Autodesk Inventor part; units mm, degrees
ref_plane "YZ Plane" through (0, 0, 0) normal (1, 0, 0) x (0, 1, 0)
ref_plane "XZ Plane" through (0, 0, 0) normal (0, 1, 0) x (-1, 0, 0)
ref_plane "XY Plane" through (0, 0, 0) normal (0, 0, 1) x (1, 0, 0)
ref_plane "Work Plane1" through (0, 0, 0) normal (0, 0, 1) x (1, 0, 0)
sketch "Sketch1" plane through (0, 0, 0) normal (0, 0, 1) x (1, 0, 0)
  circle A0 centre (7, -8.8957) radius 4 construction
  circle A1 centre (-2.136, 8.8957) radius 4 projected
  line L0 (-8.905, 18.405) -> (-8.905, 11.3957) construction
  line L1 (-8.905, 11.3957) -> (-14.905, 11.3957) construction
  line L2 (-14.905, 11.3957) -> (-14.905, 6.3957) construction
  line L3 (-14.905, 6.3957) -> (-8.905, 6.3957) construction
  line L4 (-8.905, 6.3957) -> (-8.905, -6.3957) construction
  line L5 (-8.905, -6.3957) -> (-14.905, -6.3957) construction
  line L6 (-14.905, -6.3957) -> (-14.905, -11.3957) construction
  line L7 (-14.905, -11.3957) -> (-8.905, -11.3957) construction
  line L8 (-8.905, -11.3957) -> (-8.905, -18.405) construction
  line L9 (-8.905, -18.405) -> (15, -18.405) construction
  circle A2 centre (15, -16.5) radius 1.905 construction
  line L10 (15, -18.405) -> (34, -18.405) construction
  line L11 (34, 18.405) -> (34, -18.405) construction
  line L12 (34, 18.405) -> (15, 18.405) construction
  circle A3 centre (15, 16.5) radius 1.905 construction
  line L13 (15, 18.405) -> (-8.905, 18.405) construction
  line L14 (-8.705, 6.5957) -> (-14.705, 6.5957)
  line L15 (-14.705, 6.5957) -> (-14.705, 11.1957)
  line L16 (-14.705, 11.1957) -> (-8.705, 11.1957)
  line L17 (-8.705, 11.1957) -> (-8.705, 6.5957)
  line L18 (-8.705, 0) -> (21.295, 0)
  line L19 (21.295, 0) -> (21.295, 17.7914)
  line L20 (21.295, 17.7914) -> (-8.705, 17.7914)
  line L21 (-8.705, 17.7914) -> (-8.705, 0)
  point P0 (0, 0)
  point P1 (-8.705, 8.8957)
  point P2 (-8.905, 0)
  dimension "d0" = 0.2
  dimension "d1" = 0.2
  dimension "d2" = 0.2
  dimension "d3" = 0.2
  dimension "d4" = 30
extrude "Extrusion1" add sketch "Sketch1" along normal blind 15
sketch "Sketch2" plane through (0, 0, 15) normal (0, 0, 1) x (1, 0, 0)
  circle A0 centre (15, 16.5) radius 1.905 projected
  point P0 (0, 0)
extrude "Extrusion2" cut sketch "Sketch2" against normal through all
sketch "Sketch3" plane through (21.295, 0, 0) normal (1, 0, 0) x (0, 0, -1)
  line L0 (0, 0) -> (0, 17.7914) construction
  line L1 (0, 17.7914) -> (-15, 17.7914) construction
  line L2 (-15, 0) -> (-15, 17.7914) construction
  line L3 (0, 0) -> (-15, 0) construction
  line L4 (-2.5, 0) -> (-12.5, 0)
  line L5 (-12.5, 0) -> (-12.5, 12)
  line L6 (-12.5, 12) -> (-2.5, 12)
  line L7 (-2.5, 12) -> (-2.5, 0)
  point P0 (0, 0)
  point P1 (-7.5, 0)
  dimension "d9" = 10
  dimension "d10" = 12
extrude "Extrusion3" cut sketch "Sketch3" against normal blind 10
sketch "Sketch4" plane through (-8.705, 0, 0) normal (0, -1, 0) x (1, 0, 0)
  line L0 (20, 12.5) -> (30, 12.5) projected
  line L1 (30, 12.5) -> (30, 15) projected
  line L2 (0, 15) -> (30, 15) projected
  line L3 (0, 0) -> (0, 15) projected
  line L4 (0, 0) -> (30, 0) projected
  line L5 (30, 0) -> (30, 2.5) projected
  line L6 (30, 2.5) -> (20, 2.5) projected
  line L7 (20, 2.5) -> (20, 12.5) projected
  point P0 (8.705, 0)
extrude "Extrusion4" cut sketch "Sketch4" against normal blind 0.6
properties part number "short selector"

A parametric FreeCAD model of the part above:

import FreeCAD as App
import Part
import Sketcher
from FreeCAD import Vector


def add_polygon(sketch, points):
    """Adds a closed chain of lines whose ends are joined by coincident constraints."""
    first, n = sketch.GeometryCount, len(points)
    for a, b in zip(points, points[1:] + points[:1]):
        sketch.addGeometry(Part.LineSegment(App.Vector(*a, 0), App.Vector(*b, 0)), False)
    for i in range(n):
        sketch.addConstraint(Sketcher.Constraint("Coincident", first + i, 2, first + (i + 1) % n, 1))

doc = App.newDocument("Part")
body = doc.addObject("PartDesign::Body", "Body")

# Sketch on XY plane
sketch1 = body.newObject("Sketcher::SketchObject", "Sketch")
sketch1.AttachmentSupport = (doc.getObject("XY_Plane"), [""])
sketch1.MapMode = "FlatFace"
add_polygon(sketch1, [(-14.705, 6.5957), (-8.705, 6.5957), (-8.705, 0), (21.295, 0), (21.295, 17.7914), (-8.705, 17.7914), (-8.705, 11.1957), (-14.705, 11.1957)])  # lines 0-7
sketch1.addGeometry(Part.Circle(Vector(-2.136, 8.8957, 0), Vector(0, 0, 1), 4), False)  # 8
sketch1.addConstraint([
    Sketcher.Constraint("Horizontal", 0),
    Sketcher.Constraint("Vertical", 1),
    Sketcher.Constraint("Horizontal", 2),
    Sketcher.Constraint("Vertical", 3),
    Sketcher.Constraint("Horizontal", 4),
    Sketcher.Constraint("Vertical", 5),
    Sketcher.Constraint("Horizontal", 6),
    Sketcher.Constraint("Vertical", 7),
    Sketcher.Constraint("PointOnObject", 1, 2, -1),
    Sketcher.Constraint("Vertical", 1, 2, 4, 2),
    Sketcher.Constraint("Equal", 1, 5),
    Sketcher.Constraint("DistanceX", 2, 1, 2, 2, 30.0),
    Sketcher.Constraint("Diameter", 8, 8.0),
    Sketcher.Constraint("DistanceX", 0, 1, 0, 2, 6.0),
    Sketcher.Constraint("DistanceY", 7, 2, 7, 1, 4.6),
    Sketcher.Constraint("DistanceY", 0, 2, 8, 3, 2.3),
    Sketcher.Constraint("DistanceY", 1, 2, 1, 1, 6.5957),
    Sketcher.Constraint("DistanceX", 8, 3, -1, 1, 2.136),
    Sketcher.Constraint("DistanceX", 0, 2, -1, 1, 8.705),
])
pad1 = body.newObject("PartDesign::Pad", "Pad")
pad1.Profile = sketch1
pad1.Length = 15

# Sketch on XY plane
sketch2 = body.newObject("Sketcher::SketchObject", "Sketch001")
sketch2.AttachmentSupport = (doc.getObject("XY_Plane"), [""])
sketch2.MapMode = "FlatFace"
sketch2.AttachmentOffset = App.Placement(Vector(0, 0, 15), App.Rotation())
sketch2.addGeometry(Part.Circle(Vector(15, 16.5, 0), Vector(0, 0, 1), 1.905), False)
sketch2.addConstraint([
    Sketcher.Constraint("Diameter", 0, 3.81),
    Sketcher.Constraint("DistanceX", -1, 1, 0, 3, 15.0),
    Sketcher.Constraint("DistanceY", -1, 1, 0, 3, 16.5),
])
pocket1 = body.newObject("PartDesign::Pocket", "Pocket")
pocket1.Profile = sketch2
pocket1.Type = "ThroughAll"

# Sketch on YZ plane
sketch3 = body.newObject("Sketcher::SketchObject", "Sketch002")
sketch3.AttachmentSupport = (doc.getObject("YZ_Plane"), [""])
sketch3.MapMode = "FlatFace"
sketch3.AttachmentOffset = App.Placement(Vector(0, 0, 21.295), App.Rotation())
add_polygon(sketch3, [(0, 12.5), (0, 2.5), (12, 2.5), (12, 12.5)])  # lines 0-3
sketch3.addConstraint([
    Sketcher.Constraint("Vertical", 0),
    Sketcher.Constraint("Horizontal", 1),
    Sketcher.Constraint("Vertical", 2),
    Sketcher.Constraint("Horizontal", 3),
    Sketcher.Constraint("PointOnObject", 0, 2, -2),
    Sketcher.Constraint("DistanceX", 1, 1, 1, 2, 12.0),
    Sketcher.Constraint("DistanceY", 0, 2, 0, 1, 10.0),
    Sketcher.Constraint("DistanceY", -1, 1, 0, 2, 2.5),
])
pocket2 = body.newObject("PartDesign::Pocket", "Pocket001")
pocket2.Profile = sketch3
pocket2.Length = 10

# Sketch on XZ plane
sketch4 = body.newObject("Sketcher::SketchObject", "Sketch003")
sketch4.AttachmentSupport = (doc.getObject("XZ_Plane"), [""])
sketch4.MapMode = "FlatFace"
add_polygon(sketch4, [(11.295, 2.5), (11.295, 12.5), (21.295, 12.5), (21.295, 15), (-8.705, 15), (-8.705, 0), (21.295, 0), (21.295, 2.5)])  # lines 0-7
sketch4.addConstraint([
    Sketcher.Constraint("Vertical", 0),
    Sketcher.Constraint("Horizontal", 1),
    Sketcher.Constraint("Vertical", 2),
    Sketcher.Constraint("Horizontal", 3),
    Sketcher.Constraint("Vertical", 4),
    Sketcher.Constraint("Horizontal", 5),
    Sketcher.Constraint("Vertical", 6),
    Sketcher.Constraint("Horizontal", 7),
    Sketcher.Constraint("PointOnObject", 4, 2, -1),
    Sketcher.Constraint("Vertical", 2, 2, 5, 2),
    Sketcher.Constraint("Equal", 7, 0),
    Sketcher.Constraint("Equal", 2, 6),
    Sketcher.Constraint("DistanceX", 1, 1, 1, 2, 10.0),
    Sketcher.Constraint("DistanceX", 3, 2, 3, 1, 30.0),
    Sketcher.Constraint("DistanceY", 4, 2, 4, 1, 15.0),
    Sketcher.Constraint("DistanceX", -1, 1, 0, 2, 11.295),
])
pocket3 = body.newObject("PartDesign::Pocket", "Pocket002")
pocket3.Profile = sketch4
pocket3.Length = 0.6

doc.recompute()
